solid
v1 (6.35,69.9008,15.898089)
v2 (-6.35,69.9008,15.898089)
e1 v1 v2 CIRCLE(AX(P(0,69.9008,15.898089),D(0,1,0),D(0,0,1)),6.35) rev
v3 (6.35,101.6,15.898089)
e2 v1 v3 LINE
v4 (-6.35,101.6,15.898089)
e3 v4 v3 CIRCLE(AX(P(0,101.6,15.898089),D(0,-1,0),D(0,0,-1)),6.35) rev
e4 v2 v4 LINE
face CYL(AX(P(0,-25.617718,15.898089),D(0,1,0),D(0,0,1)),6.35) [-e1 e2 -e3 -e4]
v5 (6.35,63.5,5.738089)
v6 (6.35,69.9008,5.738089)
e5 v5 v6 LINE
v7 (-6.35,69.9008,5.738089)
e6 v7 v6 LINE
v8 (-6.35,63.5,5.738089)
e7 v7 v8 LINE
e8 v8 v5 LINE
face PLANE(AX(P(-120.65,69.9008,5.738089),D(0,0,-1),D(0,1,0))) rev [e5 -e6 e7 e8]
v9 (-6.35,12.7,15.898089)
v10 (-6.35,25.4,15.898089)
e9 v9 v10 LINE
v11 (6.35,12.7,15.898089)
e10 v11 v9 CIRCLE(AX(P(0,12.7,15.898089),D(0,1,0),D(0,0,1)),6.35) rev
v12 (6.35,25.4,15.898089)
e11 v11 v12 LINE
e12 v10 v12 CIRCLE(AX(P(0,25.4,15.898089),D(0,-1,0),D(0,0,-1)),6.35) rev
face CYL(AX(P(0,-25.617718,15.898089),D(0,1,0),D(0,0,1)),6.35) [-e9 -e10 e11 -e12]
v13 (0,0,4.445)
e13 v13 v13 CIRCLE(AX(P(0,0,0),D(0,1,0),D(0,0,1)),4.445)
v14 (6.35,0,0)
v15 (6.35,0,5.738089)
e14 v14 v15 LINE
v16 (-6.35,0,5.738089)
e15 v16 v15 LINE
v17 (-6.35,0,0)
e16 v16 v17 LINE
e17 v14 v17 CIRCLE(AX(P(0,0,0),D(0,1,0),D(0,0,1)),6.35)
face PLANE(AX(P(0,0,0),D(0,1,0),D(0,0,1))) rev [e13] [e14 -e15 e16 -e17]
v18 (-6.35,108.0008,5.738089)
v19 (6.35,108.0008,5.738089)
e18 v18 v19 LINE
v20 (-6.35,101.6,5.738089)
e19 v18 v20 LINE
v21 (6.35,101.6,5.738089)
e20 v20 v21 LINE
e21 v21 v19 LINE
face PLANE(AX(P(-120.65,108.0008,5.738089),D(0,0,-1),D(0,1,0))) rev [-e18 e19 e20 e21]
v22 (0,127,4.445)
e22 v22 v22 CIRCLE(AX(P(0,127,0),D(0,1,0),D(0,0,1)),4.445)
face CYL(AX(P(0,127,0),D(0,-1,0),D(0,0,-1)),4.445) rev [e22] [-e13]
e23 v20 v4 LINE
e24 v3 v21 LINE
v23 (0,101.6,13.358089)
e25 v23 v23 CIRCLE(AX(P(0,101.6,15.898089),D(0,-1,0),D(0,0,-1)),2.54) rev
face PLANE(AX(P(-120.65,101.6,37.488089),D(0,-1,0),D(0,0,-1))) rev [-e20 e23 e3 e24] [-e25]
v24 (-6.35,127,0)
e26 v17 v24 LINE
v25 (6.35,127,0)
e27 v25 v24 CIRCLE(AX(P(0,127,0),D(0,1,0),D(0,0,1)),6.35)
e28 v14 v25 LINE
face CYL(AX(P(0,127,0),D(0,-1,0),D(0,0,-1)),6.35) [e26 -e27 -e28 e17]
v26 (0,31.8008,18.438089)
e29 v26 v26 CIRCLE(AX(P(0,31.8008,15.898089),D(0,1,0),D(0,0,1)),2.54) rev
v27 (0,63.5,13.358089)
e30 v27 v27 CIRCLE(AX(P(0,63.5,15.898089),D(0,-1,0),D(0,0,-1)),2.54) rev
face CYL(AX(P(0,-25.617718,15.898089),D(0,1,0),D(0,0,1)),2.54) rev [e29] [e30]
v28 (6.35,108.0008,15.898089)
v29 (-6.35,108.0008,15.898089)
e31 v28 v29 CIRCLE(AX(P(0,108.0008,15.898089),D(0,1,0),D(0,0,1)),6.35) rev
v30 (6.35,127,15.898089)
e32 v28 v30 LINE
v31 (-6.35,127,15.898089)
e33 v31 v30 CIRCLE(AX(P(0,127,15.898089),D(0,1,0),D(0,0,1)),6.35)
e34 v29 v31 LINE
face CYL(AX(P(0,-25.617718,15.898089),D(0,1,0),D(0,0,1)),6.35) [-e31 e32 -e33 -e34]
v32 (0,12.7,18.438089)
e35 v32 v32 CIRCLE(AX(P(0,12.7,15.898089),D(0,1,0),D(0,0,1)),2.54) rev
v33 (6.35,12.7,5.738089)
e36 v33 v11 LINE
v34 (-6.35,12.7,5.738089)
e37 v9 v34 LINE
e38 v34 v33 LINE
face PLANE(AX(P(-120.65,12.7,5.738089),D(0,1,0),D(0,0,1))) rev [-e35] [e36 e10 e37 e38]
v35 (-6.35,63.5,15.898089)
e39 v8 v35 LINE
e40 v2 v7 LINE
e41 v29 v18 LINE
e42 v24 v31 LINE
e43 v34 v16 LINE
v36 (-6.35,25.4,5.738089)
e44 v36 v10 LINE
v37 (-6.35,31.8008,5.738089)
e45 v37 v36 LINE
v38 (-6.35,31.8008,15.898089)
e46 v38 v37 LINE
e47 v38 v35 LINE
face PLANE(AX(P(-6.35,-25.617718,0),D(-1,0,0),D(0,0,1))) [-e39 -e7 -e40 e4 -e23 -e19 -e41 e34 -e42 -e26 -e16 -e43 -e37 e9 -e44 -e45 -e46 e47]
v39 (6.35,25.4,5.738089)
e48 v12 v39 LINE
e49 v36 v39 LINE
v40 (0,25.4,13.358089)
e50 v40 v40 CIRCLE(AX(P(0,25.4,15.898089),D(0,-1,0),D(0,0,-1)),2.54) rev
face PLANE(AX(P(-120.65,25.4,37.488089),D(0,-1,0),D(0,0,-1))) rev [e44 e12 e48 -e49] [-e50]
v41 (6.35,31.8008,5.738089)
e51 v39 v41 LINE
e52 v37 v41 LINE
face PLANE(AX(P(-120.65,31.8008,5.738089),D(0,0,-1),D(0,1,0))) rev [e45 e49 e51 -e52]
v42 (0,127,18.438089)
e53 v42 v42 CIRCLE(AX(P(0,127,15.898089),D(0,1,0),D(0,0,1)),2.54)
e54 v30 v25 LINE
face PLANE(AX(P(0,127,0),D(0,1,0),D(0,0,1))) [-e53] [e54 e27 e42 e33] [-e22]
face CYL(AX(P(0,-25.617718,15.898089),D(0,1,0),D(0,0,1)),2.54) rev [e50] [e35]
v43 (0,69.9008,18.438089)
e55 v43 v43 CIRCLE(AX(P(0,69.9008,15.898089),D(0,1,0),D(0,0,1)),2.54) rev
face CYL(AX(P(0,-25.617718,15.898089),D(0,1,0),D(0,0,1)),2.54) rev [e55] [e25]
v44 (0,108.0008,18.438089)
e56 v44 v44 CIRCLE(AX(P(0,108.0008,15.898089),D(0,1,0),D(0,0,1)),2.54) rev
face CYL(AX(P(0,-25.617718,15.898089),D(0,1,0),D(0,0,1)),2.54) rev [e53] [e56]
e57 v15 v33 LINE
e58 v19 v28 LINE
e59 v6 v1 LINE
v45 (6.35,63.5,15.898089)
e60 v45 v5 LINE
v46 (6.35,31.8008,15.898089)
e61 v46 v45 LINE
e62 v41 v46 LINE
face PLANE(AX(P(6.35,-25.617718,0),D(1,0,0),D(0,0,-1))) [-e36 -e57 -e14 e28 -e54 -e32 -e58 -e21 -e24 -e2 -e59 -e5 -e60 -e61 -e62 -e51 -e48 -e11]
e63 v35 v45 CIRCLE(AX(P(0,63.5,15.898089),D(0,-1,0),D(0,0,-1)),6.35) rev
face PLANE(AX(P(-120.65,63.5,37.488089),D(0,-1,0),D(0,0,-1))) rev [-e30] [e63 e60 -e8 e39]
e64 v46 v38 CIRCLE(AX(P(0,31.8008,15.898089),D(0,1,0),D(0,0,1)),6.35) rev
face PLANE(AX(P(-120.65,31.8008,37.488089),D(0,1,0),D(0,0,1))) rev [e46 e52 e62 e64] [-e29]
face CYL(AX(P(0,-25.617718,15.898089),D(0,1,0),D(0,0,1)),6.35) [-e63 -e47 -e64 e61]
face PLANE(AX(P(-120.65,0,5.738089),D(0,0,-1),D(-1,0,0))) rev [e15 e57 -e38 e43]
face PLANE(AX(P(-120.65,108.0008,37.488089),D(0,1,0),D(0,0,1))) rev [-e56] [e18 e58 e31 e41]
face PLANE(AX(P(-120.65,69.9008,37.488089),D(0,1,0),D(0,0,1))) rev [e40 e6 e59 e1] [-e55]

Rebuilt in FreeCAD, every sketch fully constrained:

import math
import FreeCAD as App
import Part
import Sketcher
Q = App.Units.Quantity


def add_polygon(sketch, points):
    """Adds a closed chain of lines whose ends are joined by coincident constraints."""
    first, n = sketch.GeometryCount, len(points)
    for a, b in zip(points, points[1:] + points[:1]):
        sketch.addGeometry(Part.LineSegment(App.Vector(*a, 0), App.Vector(*b, 0)), False)
    for i in range(n):
        sketch.addConstraint(Sketcher.Constraint("Coincident", first + i, 2, first + (i + 1) % n, 1))

doc = App.newDocument("Part")
body = doc.addObject("PartDesign::Body", "Body")

sketch1 = doc.addObject("Sketcher::SketchObject", "Sketch")
body.addObject(sketch1)
sketch1.AttachmentSupport = (doc.XZ_Plane, [""])
sketch1.MapMode = "FlatFace"
sketch1.addGeometry([
    Part.Circle(App.Vector(0, 0, 0), App.Vector(0, 0, 1), 6.3),
    Part.Circle(App.Vector(0, 0, 0), App.Vector(0, 0, 1), 4.4),
], False)
sketch1.addConstraint([
    Sketcher.Constraint("Coincident", 0, 3, -1, 1),
    Sketcher.Constraint("Coincident", 1, 3, -1, 1),
    Sketcher.Constraint("Diameter", 0, Q("0.5 in")),
    Sketcher.Constraint("Diameter", 1, Q("0.35 in")),
])
pad1 = doc.addObject("PartDesign::Pad", "Pad")
body.addObject(pad1)
pad1.Profile = sketch1
pad1.Length = Q("5 in")
pad1.Reversed = True

sketch2 = doc.addObject("Sketcher::SketchObject", "Sketch001")
body.addObject(sketch2)
sketch2.AttachmentSupport = (doc.XZ_Plane, [""])
sketch2.MapMode = "FlatFace"
sketch2.addGeometry([
    Part.LineSegment(App.Vector(-6.3, 0, 0), App.Vector(-6.3, 15.9, 0)),
    Part.ArcOfCircle(Part.Circle(App.Vector(0, 15.9, 0), App.Vector(0, 0, 1), 6.3), math.radians(0), math.radians(180)),
    Part.LineSegment(App.Vector(6.3, 15.9, 0), App.Vector(6.3, 0, 0)),
    Part.ArcOfCircle(Part.Circle(App.Vector(0, 0, 0), App.Vector(0, 0, 1), 6.3), math.radians(0), math.radians(180)),
    Part.Circle(App.Vector(0, 15.9, 0), App.Vector(0, 0, 1), 2.5),
], False)
sketch2.addConstraint([
    Sketcher.Constraint("Tangent", 0, 2, 1, 2),
    Sketcher.Constraint("Tangent", 1, 1, 2, 1),
    Sketcher.Constraint("Tangent", 2, 2, 3, 1),
    Sketcher.Constraint("Tangent", 3, 2, 0, 1),
    Sketcher.Constraint("Vertical", 0),
    Sketcher.Constraint("Vertical", 2),
    Sketcher.Constraint("Coincident", 3, 3, -1, 1),
    Sketcher.Constraint("Coincident", 4, 3, 1, 3),
    Sketcher.Constraint("Diameter", 4, Q("0.2 in")),
    Sketcher.Constraint("Radius", 1, Q("0.25 in")),
    Sketcher.Constraint("DistanceY", 0, 1, 0, 2, Q("15.898089 mm")),
])
pad2 = doc.addObject("PartDesign::Pad", "Pad001")
body.addObject(pad2)
pad2.Profile = sketch2
pad2.Length = Q("5 in")
pad2.Reversed = True

sketch3 = doc.addObject("Sketcher::SketchObject", "Sketch002")
body.addObject(sketch3)
sketch3.AttachmentSupport = (doc.YZ_Plane, [""])
sketch3.MapMode = "FlatFace"
sketch3.AttachmentOffset = App.Placement(App.Vector(0, 0, 0.25 * 25.4), App.Rotation())
add_polygon(sketch3, [(32, 37), (25, 37), (25, 6), (32, 6)])
add_polygon(sketch3, [(70, 37), (64, 37), (64, 6), (70, 6)])
add_polygon(sketch3, [(108, 37), (102, 37), (102, 6), (108, 6)])
add_polygon(sketch3, [(13, 37), (0, 37), (0, 6), (13, 6)])
sketch3.addConstraint([
    Sketcher.Constraint("Horizontal", 0),
    Sketcher.Constraint("Vertical", 1),
    Sketcher.Constraint("Horizontal", 2),
    Sketcher.Constraint("Vertical", 3),
    Sketcher.Constraint("Horizontal", 4),
    Sketcher.Constraint("Vertical", 5),
    Sketcher.Constraint("Horizontal", 6),
    Sketcher.Constraint("Vertical", 7),
    Sketcher.Constraint("Horizontal", 8),
    Sketcher.Constraint("Vertical", 9),
    Sketcher.Constraint("Horizontal", 10),
    Sketcher.Constraint("Vertical", 11),
    Sketcher.Constraint("Horizontal", 12),
    Sketcher.Constraint("Vertical", 13),
    Sketcher.Constraint("Horizontal", 14),
    Sketcher.Constraint("Vertical", 15),
    Sketcher.Constraint("PointOnObject", 12, 2, -2),
    Sketcher.Constraint("Horizontal", 3, 2, 4, 2),
    Sketcher.Constraint("Horizontal", 2, 2, 5, 2),
    Sketcher.Constraint("Horizontal", 7, 2, 8, 2),
    Sketcher.Constraint("Horizontal", 6, 2, 9, 2),
    Sketcher.Constraint("Horizontal", 11, 2, 12, 2),
    Sketcher.Constraint("Horizontal", 10, 2, 13, 2),
    Sketcher.Constraint("Equal", 2, 4),
    Sketcher.Constraint("Equal", 6, 8),
    Sketcher.Constraint("DistanceX", 12, 2, 12, 1, Q("0.5 in")),
    Sketcher.Constraint("DistanceX", -1, 1, 0, 2, Q("1 in")),
    Sketcher.Constraint("DistanceX", -1, 1, 8, 2, Q("4 in")),
    Sketcher.Constraint("DistanceY", 1, 2, 1, 1, Q("1.25 in")),
    Sketcher.Constraint("DistanceX", -1, 1, 4, 2, Q("2.5 in")),
    Sketcher.Constraint("DistanceX", 0, 2, 0, 1, Q("0.252 in")),
    Sketcher.Constraint("DistanceY", -1, 1, 0, 2, Q("37.488089 mm")),
])
pocket1 = doc.addObject("PartDesign::Pocket", "Pocket")
body.addObject(pocket1)
pocket1.Profile = sketch3
pocket1.Length = Q("5 in")

doc.recompute()
